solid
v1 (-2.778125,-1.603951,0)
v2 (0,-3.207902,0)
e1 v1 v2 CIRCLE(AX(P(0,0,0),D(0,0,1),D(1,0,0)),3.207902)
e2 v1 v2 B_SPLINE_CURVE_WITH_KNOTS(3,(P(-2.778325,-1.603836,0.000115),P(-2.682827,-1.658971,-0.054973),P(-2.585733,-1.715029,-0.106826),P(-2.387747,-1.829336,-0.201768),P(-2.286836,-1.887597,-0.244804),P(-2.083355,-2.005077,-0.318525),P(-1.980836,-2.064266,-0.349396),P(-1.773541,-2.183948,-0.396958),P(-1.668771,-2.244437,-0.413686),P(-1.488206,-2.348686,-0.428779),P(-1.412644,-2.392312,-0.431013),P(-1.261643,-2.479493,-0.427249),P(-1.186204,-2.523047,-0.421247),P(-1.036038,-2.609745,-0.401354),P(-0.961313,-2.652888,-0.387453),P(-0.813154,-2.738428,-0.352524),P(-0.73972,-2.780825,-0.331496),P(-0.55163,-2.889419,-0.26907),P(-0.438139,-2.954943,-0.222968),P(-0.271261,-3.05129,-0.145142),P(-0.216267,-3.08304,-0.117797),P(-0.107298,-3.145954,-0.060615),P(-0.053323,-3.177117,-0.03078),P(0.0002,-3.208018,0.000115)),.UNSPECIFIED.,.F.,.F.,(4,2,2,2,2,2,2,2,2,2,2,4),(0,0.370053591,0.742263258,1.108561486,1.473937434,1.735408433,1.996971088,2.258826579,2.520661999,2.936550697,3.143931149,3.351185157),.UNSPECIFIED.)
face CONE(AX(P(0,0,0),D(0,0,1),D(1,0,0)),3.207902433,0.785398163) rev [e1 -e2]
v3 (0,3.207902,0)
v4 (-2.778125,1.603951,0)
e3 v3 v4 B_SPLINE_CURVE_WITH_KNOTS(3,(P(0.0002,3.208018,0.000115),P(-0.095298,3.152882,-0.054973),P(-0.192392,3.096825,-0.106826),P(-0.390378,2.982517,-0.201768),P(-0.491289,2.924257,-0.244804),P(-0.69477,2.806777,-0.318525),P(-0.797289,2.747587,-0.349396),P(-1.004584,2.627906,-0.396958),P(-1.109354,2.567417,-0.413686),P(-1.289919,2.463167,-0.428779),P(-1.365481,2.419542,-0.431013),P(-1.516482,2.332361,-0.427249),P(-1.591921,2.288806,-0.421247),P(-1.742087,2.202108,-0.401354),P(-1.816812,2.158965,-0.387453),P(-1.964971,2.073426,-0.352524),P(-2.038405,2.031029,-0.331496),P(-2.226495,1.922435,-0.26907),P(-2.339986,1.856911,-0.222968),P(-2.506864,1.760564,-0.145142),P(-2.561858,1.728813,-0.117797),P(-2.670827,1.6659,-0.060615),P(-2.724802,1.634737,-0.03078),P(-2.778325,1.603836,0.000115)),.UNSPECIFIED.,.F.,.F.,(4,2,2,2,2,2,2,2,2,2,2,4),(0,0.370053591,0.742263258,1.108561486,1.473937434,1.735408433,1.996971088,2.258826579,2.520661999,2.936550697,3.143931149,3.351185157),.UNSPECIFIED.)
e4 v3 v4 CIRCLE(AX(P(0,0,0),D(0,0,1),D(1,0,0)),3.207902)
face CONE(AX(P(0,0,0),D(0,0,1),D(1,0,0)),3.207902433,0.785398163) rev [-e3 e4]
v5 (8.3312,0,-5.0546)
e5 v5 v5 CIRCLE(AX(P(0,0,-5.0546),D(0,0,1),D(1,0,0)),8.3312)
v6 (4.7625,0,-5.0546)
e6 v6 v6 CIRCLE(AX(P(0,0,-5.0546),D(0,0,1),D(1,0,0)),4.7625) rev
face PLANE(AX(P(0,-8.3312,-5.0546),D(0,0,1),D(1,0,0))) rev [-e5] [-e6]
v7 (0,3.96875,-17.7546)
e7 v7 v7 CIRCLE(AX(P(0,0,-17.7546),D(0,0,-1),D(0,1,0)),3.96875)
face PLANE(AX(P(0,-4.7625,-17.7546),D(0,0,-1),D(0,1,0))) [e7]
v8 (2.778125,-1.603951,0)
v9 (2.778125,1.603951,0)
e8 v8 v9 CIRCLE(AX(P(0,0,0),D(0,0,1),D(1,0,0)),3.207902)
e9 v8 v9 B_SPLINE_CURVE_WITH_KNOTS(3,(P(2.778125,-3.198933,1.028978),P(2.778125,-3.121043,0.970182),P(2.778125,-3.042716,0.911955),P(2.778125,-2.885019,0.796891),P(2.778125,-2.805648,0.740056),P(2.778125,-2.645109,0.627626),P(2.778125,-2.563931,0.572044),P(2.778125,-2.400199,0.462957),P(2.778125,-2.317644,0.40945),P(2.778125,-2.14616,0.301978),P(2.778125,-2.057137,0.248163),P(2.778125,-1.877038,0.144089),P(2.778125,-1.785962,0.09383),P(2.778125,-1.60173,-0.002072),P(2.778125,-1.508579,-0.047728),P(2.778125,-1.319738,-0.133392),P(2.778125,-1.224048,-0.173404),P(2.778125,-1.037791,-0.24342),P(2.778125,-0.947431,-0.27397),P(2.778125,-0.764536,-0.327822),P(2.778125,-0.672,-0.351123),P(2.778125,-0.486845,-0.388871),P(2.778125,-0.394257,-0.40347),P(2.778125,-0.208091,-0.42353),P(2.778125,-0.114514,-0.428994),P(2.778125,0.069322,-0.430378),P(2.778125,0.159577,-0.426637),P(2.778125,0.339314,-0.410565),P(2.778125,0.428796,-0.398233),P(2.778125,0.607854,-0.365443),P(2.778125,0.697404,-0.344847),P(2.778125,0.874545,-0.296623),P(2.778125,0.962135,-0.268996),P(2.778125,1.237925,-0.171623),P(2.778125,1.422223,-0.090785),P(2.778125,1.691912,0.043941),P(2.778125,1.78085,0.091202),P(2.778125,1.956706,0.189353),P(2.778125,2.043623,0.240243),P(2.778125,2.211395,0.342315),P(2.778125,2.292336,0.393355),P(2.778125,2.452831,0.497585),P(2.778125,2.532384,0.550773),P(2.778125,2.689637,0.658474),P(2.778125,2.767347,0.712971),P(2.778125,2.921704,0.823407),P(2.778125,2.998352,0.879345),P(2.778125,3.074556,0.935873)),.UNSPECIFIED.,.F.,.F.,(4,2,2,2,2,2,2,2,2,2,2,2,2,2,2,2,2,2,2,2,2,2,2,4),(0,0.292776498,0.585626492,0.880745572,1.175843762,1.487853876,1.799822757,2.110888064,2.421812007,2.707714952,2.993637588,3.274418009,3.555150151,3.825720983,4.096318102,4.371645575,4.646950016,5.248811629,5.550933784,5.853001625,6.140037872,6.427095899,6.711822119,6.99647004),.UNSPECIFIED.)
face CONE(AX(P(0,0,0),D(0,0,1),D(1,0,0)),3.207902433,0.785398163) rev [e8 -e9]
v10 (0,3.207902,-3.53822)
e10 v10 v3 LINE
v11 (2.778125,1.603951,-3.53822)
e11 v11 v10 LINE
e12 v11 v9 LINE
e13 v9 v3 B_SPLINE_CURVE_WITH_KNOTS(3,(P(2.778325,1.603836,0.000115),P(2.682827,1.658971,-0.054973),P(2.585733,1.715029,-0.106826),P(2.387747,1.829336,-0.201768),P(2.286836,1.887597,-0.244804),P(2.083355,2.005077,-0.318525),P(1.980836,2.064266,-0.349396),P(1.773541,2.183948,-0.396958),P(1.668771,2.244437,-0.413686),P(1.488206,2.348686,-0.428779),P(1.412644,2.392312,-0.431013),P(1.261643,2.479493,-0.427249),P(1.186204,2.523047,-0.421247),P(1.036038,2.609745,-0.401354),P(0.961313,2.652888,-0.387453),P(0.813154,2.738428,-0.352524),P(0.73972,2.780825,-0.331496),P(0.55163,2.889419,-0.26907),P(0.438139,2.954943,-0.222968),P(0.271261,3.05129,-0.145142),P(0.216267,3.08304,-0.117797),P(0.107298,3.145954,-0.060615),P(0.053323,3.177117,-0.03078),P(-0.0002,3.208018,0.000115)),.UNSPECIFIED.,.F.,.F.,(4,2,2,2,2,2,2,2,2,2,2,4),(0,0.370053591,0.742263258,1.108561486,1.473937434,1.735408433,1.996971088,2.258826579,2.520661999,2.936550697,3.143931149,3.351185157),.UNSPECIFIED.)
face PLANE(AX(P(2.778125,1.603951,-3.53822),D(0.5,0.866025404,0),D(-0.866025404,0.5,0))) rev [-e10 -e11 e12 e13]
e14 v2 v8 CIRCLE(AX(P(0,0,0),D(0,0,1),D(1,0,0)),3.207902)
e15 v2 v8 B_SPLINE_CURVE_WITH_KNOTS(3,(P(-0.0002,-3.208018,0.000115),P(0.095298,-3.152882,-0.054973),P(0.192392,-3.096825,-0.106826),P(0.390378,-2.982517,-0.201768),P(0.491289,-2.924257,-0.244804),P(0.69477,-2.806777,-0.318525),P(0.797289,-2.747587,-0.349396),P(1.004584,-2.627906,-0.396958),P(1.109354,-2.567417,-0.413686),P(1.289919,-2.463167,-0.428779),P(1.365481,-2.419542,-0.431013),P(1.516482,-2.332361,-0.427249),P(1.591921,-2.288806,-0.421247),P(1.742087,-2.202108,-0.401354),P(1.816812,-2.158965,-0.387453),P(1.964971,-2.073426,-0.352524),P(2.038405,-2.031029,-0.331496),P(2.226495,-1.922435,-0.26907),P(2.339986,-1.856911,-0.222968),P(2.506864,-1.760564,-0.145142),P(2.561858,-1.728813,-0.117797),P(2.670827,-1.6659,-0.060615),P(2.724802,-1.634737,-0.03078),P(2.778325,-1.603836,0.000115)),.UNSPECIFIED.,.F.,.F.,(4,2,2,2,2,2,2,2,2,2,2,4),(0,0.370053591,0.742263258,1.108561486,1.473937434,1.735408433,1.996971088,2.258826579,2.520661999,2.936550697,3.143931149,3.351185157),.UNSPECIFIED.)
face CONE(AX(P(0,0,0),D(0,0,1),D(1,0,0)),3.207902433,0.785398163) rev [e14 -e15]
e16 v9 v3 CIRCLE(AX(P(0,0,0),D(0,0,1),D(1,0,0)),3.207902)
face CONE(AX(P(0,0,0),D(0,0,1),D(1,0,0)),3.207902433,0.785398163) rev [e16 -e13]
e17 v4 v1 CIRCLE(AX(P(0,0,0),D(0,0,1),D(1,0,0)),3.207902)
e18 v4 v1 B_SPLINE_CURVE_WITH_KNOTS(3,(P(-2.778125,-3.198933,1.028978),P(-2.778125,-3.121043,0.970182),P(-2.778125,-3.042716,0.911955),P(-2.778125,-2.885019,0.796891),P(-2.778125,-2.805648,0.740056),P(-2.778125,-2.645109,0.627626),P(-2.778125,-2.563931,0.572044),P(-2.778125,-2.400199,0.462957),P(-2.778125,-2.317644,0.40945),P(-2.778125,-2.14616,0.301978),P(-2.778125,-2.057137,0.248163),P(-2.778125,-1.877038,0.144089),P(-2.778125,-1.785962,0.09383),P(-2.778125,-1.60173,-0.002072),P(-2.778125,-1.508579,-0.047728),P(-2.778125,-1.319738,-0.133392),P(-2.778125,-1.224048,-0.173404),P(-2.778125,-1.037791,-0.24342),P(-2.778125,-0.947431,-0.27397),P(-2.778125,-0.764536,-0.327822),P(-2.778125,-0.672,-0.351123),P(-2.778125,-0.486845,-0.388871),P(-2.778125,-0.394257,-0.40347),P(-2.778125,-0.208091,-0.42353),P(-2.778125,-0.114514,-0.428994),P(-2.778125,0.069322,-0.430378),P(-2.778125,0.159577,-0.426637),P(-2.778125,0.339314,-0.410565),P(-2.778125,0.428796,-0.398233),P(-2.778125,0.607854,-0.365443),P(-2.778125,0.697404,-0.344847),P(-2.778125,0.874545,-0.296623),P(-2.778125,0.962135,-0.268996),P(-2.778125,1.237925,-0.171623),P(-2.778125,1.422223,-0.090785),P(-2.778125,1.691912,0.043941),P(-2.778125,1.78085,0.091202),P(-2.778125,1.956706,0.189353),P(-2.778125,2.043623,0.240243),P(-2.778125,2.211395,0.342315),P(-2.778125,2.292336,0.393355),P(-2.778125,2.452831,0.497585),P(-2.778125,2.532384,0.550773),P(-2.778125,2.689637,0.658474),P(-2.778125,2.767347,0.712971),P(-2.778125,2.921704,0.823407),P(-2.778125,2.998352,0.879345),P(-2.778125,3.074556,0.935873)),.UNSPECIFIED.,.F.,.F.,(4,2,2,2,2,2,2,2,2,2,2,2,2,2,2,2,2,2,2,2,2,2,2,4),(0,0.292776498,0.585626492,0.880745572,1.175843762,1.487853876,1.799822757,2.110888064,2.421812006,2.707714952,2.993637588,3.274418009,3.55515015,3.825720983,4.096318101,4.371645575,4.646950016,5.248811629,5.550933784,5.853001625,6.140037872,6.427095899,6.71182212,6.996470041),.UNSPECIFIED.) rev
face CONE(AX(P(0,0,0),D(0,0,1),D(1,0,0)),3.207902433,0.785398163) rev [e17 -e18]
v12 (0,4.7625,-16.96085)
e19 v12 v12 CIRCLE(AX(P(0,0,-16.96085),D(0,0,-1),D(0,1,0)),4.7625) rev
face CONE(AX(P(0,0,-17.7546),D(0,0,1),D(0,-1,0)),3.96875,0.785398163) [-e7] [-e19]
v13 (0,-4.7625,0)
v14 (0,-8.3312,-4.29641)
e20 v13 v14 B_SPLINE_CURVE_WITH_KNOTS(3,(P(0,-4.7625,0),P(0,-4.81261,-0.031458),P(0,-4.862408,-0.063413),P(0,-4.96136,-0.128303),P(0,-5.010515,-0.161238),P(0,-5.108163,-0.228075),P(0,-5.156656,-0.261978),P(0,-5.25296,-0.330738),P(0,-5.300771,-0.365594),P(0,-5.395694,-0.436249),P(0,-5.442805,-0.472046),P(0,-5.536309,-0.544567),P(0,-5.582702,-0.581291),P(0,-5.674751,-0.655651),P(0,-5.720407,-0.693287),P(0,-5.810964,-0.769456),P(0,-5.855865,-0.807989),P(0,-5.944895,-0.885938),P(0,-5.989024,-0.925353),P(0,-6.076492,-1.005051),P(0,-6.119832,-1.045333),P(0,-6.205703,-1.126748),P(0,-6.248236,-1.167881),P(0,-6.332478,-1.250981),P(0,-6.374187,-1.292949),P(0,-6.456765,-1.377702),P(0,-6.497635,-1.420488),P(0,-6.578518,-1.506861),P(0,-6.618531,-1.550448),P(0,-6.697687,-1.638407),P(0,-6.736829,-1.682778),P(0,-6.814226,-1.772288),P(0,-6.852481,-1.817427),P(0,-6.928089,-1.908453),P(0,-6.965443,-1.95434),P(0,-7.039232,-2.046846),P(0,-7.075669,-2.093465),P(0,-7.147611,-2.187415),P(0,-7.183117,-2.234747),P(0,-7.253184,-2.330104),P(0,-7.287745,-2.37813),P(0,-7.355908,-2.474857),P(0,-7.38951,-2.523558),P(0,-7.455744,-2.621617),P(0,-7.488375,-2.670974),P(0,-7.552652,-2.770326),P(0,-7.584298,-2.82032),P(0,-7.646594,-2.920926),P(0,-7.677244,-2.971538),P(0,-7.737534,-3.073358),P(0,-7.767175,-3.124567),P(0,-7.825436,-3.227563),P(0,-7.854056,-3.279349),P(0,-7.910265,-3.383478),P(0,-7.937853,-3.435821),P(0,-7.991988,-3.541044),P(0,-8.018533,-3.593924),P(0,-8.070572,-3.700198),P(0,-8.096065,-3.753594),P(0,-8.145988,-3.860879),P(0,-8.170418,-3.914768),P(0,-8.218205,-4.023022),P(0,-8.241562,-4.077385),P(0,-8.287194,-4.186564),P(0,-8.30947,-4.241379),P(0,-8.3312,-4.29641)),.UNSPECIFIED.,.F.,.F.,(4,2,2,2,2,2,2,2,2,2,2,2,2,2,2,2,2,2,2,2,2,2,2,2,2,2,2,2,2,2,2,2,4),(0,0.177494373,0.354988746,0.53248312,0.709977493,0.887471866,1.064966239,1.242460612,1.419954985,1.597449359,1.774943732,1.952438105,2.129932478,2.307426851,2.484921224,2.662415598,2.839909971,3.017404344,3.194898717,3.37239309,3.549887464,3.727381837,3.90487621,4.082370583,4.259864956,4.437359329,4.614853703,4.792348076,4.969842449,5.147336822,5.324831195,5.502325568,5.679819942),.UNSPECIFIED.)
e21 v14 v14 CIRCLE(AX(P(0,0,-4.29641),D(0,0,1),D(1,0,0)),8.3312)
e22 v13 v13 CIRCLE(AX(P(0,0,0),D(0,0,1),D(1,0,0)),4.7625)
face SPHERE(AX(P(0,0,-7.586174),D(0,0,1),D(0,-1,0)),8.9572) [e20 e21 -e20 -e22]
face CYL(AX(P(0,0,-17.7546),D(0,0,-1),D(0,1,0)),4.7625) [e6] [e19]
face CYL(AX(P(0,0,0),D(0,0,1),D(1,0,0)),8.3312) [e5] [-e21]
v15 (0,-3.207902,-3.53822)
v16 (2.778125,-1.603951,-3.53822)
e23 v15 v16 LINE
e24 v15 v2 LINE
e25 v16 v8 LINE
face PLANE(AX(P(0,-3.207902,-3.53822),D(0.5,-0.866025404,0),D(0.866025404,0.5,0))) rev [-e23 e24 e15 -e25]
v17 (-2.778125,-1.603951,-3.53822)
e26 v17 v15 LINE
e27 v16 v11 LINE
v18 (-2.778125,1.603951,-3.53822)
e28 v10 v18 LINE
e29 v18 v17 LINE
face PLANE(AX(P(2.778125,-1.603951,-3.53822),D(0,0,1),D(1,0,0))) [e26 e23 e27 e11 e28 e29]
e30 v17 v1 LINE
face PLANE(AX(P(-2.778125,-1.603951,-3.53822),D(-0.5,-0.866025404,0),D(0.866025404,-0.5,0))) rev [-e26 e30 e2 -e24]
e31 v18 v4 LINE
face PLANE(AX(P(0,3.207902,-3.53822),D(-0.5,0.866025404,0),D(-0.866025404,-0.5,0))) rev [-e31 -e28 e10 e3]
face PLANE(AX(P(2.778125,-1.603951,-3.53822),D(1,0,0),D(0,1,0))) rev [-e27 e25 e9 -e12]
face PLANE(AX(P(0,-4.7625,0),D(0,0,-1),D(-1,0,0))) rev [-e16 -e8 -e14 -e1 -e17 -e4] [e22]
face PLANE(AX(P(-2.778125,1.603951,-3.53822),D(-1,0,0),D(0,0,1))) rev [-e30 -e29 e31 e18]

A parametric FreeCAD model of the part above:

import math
import FreeCAD as App
import Part
import Sketcher
from FreeCAD import Vector
Q = App.Units.Quantity


def edges_at(feature, points):
    """Names of the edges that pass closest to the given points."""
    edges = feature.Shape.Edges
    near = lambda p: min(range(len(edges)), key=lambda i: edges[i].distToShape(Part.Vertex(*p))[0])
    return sorted({f"Edge{near(p) + 1}" for p in points})


def add_polygon(sketch, points):
    """Adds a closed chain of lines whose ends are joined by coincident constraints."""
    first, n = sketch.GeometryCount, len(points)
    for a, b in zip(points, points[1:] + points[:1]):
        sketch.addGeometry(Part.LineSegment(App.Vector(*a, 0), App.Vector(*b, 0)), False)
    for i in range(n):
        sketch.addConstraint(Sketcher.Constraint("Coincident", first + i, 2, first + (i + 1) % n, 1))

doc = App.newDocument("Part")
body = doc.addObject("PartDesign::Body", "Body")

# Sketch on YZ plane
sketch1 = doc.addObject("Sketcher::SketchObject", "Sketch")
body.addObject(sketch1)
sketch1.AttachmentSupport = (doc.YZ_Plane, [""])
sketch1.MapMode = "FlatFace"
add_polygon(sketch1, [(4.7625, -5.0546), (0, -5.0546), (0, -17.7546), (4.7625, -17.7546)])  # lines 0-3
sketch1.addConstraint([
    Sketcher.Constraint("Horizontal", 0),
    Sketcher.Constraint("Vertical", 1),
    Sketcher.Constraint("Horizontal", 2),
    Sketcher.Constraint("Vertical", 3),
    Sketcher.Constraint("PointOnObject", 0, 2, -2),
    Sketcher.Constraint("DistanceY", 1, 2, 1, 1, Q("0.5 in")),
    Sketcher.Constraint("DistanceX", 0, 2, 0, 1, Q("0.1875 in")),
    Sketcher.Constraint("DistanceY", 0, 2, -1, 1, Q("0.199 in")),
])
revolution = doc.addObject("PartDesign::Revolution", "Revolution")
body.addObject(revolution)
revolution.Profile = sketch1
revolution.ReferenceAxis = (sketch1, ["V_Axis"])
revolution.Angle = 360
doc.recompute()

chamfer = doc.addObject("PartDesign::Chamfer", "Chamfer")
body.addObject(chamfer)
chamfer.Base = (revolution, edges_at(revolution, [(0, -4.763, -17.755)]))
chamfer.Size = Q("0.03125 in")

# Sketch on YZ plane
sketch2 = doc.addObject("Sketcher::SketchObject", "Sketch001")
body.addObject(sketch2)
sketch2.AttachmentSupport = (doc.YZ_Plane, [""])
sketch2.MapMode = "FlatFace"
sketch2.addGeometry([
    Part.LineSegment(Vector(8.3312, -5.0546, 0), Vector(8.3312, -4.29641, 0)),  # 0
    Part.ArcOfCircle(Part.Circle(Vector(0, -7.586174, 0), Vector(0, 0, 1), 8.9572), math.radians(21.547713), math.radians(57.879939)),  # 1
    Part.LineSegment(Vector(4.7625, 0, 0), Vector(0, 0, 0)),  # 2
    Part.LineSegment(Vector(0, 0, 0), Vector(0, -5.0546, 0)),  # 3
    Part.LineSegment(Vector(0, -5.0546, 0), Vector(8.3312, -5.0546, 0)),  # 4
], False)
sketch2.addConstraint([
    Sketcher.Constraint("Coincident", 0, 2, 1, 1),
    Sketcher.Constraint("Coincident", 1, 2, 2, 1),
    Sketcher.Constraint("Coincident", 2, 2, 3, 1),
    Sketcher.Constraint("Coincident", 3, 2, 4, 1),
    Sketcher.Constraint("Coincident", 4, 2, 0, 1),
    Sketcher.Constraint("Vertical", 0),
    Sketcher.Constraint("Horizontal", 2),
    Sketcher.Constraint("Vertical", 3),
    Sketcher.Constraint("Horizontal", 4),
    Sketcher.Constraint("Coincident", 2, 2, -1, 1),
    Sketcher.Constraint("PointOnObject", 1, 3, -2),
    Sketcher.Constraint("DistanceX", 2, 2, 2, 1, Q("0.1875 in")),
    Sketcher.Constraint("DistanceX", 4, 1, 4, 2, Q("0.328 in")),
    Sketcher.Constraint("DistanceY", 3, 2, 3, 1, Q("0.199 in")),
    Sketcher.Constraint("Radius", 1, Q("8.9572 mm")),
])
revolution2 = doc.addObject("PartDesign::Revolution", "Revolution001")
body.addObject(revolution2)
revolution2.Profile = sketch2
revolution2.ReferenceAxis = (sketch2, ["V_Axis"])
revolution2.Angle = 360

# Sketch on XY plane
sketch3 = doc.addObject("Sketcher::SketchObject", "Sketch002")
body.addObject(sketch3)
sketch3.AttachmentSupport = (doc.XY_Plane, [""])
sketch3.MapMode = "FlatFace"
add_polygon(sketch3, [(2.778125, -1.603951), (2.778125, 1.603951), (0, 3.207902), (-2.778125, 1.603951), (-2.778125, -1.603951), (0, -3.207902)])  # lines 0-5
sketch3.addConstraint([
    Sketcher.Constraint("Vertical", 0),
    Sketcher.Constraint("Vertical", 3),
    Sketcher.Constraint("Symmetric", 0, 2, 3, 2, -1, 1),
    Sketcher.Constraint("Symmetric", 1, 2, 4, 2, -1, 1),
    Sketcher.Constraint("PointOnObject", 1, 2, -2),
    Sketcher.Constraint("Parallel", 2, 5),
    Sketcher.Constraint("Horizontal", 0, 2, 2, 2),
    Sketcher.Constraint("Angle", 1, Q("150 deg")),
    Sketcher.Constraint("DistanceX", -1, 1, 0, 2, Q("0.109375 in")),
    Sketcher.Constraint("DistanceY", 0, 1, 0, 2, Q("3.207902 mm")),
])
pocket1 = doc.addObject("PartDesign::Pocket", "Pocket")
body.addObject(pocket1)
pocket1.Profile = sketch3
pocket1.Length = Q("0.1393 in")

# Sketch on YZ plane
sketch4 = doc.addObject("Sketcher::SketchObject", "Sketch003")
body.addObject(sketch4)
sketch4.AttachmentSupport = (doc.YZ_Plane, [""])
sketch4.MapMode = "FlatFace"
add_polygon(sketch4, [(0, 0), (-3.207902, 0), (0, -3.207902)])  # lines 0-2
sketch4.addConstraint([
    Sketcher.Constraint("Horizontal", 0),
    Sketcher.Constraint("Vertical", 2),
    Sketcher.Constraint("Coincident", 2, 2, -1, 1),
    Sketcher.Constraint("Equal", 0, 2),
    Sketcher.Constraint("Distance", 1, Q("4.536659 mm")),
])
groove = doc.addObject("PartDesign::Groove", "Groove")
body.addObject(groove)
groove.Profile = sketch4
groove.ReferenceAxis = (sketch4, ["V_Axis"])
groove.Angle = 360

doc.recompute()
